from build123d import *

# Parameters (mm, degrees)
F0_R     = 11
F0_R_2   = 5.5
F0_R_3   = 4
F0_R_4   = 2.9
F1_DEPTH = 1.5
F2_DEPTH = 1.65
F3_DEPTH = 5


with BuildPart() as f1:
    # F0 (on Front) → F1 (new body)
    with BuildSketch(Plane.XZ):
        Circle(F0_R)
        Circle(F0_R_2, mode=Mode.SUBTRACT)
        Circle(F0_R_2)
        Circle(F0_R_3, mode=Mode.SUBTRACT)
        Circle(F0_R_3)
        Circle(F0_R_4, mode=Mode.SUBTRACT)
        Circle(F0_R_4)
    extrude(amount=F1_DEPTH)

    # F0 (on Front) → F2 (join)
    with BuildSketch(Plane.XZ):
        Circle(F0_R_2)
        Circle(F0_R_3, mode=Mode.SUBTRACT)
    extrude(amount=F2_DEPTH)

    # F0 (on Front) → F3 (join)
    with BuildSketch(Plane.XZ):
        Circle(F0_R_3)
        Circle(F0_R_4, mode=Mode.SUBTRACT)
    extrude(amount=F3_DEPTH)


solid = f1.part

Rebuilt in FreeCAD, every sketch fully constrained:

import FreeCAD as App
import Part
import Sketcher

V = App.Vector
Q = App.Units.Quantity

doc = App.newDocument("Part")
body = doc.addObject("PartDesign::Body", "Body")

sketch1 = doc.addObject("Sketcher::SketchObject", "Sketch")
body.addObject(sketch1)
sketch1.AttachmentSupport = (doc.XZ_Plane, [""])
sketch1.MapMode = "FlatFace"
sketch1.addGeometry(Part.Circle(V(0, 0, 0), V(0, 0, 1), 11), False)
sketch1.addConstraint(Sketcher.Constraint("Coincident", 0, 3, -1, 1))
sketch1.addConstraint(Sketcher.Constraint("Diameter", 0, Q("22 mm")))
pad1 = doc.addObject("PartDesign::Pad", "Pad")
body.addObject(pad1)
pad1.Profile = sketch1
pad1.Length = 1.5

sketch2 = doc.addObject("Sketcher::SketchObject", "Sketch001")
body.addObject(sketch2)
sketch2.AttachmentSupport = (doc.XZ_Plane, [""])
sketch2.MapMode = "FlatFace"
sketch2.addGeometry(Part.Circle(V(0, 0, 0), V(0, 0, 1), 5.5), False)
sketch2.addGeometry(Part.Circle(V(0, 0, 0), V(0, 0, 1), 4), False)
sketch2.addConstraint(Sketcher.Constraint("Coincident", 0, 3, -1, 1))
sketch2.addConstraint(Sketcher.Constraint("Coincident", 1, 3, -1, 1))
sketch2.addConstraint(Sketcher.Constraint("Diameter", 0, Q("11 mm")))
sketch2.addConstraint(Sketcher.Constraint("Diameter", 1, Q("8 mm")))
pad2 = doc.addObject("PartDesign::Pad", "Pad001")
body.addObject(pad2)
pad2.Profile = sketch2
pad2.Length = 1.65

sketch3 = doc.addObject("Sketcher::SketchObject", "Sketch002")
body.addObject(sketch3)
sketch3.AttachmentSupport = (doc.XZ_Plane, [""])
sketch3.MapMode = "FlatFace"
sketch3.addGeometry(Part.Circle(V(0, 0, 0), V(0, 0, 1), 4), False)
sketch3.addGeometry(Part.Circle(V(0, 0, 0), V(0, 0, 1), 2.9), False)
sketch3.addConstraint(Sketcher.Constraint("Coincident", 0, 3, -1, 1))
sketch3.addConstraint(Sketcher.Constraint("Coincident", 1, 3, -1, 1))
sketch3.addConstraint(Sketcher.Constraint("Diameter", 0, Q("8 mm")))
sketch3.addConstraint(Sketcher.Constraint("Diameter", 1, Q("5.8 mm")))
pad3 = doc.addObject("PartDesign::Pad", "Pad002")
body.addObject(pad3)
pad3.Profile = sketch3
pad3.Length = 5

doc.recompute()
